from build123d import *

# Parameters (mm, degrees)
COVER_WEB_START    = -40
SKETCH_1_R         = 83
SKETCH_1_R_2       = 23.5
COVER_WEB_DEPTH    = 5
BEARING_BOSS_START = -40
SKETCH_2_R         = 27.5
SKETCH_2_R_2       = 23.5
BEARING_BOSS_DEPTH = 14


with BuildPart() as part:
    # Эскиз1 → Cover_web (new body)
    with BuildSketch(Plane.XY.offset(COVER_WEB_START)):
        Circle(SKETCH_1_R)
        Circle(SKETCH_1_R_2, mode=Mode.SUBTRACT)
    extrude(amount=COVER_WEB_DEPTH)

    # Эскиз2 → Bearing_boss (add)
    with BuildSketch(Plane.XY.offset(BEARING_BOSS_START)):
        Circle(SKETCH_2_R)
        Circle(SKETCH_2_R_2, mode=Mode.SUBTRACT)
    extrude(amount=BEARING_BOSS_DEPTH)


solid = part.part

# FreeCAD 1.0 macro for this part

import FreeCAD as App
import Part
import Sketcher
Q = App.Units.Quantity

doc = App.newDocument("Part")
params = doc.addObject("Spreadsheet::Sheet", "Params")
for row, (alias, value) in enumerate([
    ("sketch1_diameter", "166 mm"),
    ("sketch1_diameter2", "47 mm"),
    ("pad1_length", "5 mm"),
    ("sketch2_diameter", "55 mm"),
    ("sketch2_diameter2", "47 mm"),
    ("pad2_length", "14 mm"),
], start=1):
    params.set(f"A{row}", alias)
    params.set(f"B{row}", "=" + value)
    params.setAlias(f"B{row}", alias)

body = doc.addObject("PartDesign::Body", "Body")

sketch1 = doc.addObject("Sketcher::SketchObject", "Sketch")
body.addObject(sketch1)
sketch1.AttachmentSupport = (doc.XY_Plane, [""])
sketch1.MapMode = "FlatFace"
sketch1.AttachmentOffset = App.Placement(App.Vector(0, 0, -40), App.Rotation())
sketch1.addGeometry(Part.Circle(App.Vector(0, 0, 0), App.Vector(0, 0, 1), 83), False)
sketch1.addGeometry(Part.Circle(App.Vector(0, 0, 0), App.Vector(0, 0, 1), 24), False)
sketch1.addConstraint(Sketcher.Constraint("Coincident", 0, 3, -1, 1))
sketch1.addConstraint(Sketcher.Constraint("Coincident", 1, 3, -1, 1))
sketch1.addConstraint(Sketcher.Constraint("Diameter", 0, Q("166 mm")))
sketch1.addConstraint(Sketcher.Constraint("Diameter", 1, Q("47 mm")))
sketch1.setExpression("Constraints[2]", "Params.sketch1_diameter")
sketch1.setExpression("Constraints[3]", "Params.sketch1_diameter2")
pad1 = doc.addObject("PartDesign::Pad", "Pad")
body.addObject(pad1)
pad1.Profile = sketch1
pad1.setExpression("Length", "Params.pad1_length")

sketch2 = doc.addObject("Sketcher::SketchObject", "Sketch001")
body.addObject(sketch2)
sketch2.AttachmentSupport = (doc.XY_Plane, [""])
sketch2.MapMode = "FlatFace"
sketch2.AttachmentOffset = App.Placement(App.Vector(0, 0, -40), App.Rotation())
sketch2.addGeometry(Part.Circle(App.Vector(0, 0, 0), App.Vector(0, 0, 1), 28), False)
sketch2.addGeometry(Part.Circle(App.Vector(0, 0, 0), App.Vector(0, 0, 1), 24), False)
sketch2.addConstraint(Sketcher.Constraint("Coincident", 0, 3, -1, 1))
sketch2.addConstraint(Sketcher.Constraint("Coincident", 1, 3, -1, 1))
sketch2.addConstraint(Sketcher.Constraint("Diameter", 0, Q("55 mm")))
sketch2.addConstraint(Sketcher.Constraint("Diameter", 1, Q("47 mm")))
sketch2.setExpression("Constraints[2]", "Params.sketch2_diameter")
sketch2.setExpression("Constraints[3]", "Params.sketch2_diameter2")
pad2 = doc.addObject("PartDesign::Pad", "Pad001")
body.addObject(pad2)
pad2.Profile = sketch2
pad2.setExpression("Length", "Params.pad2_length")

doc.recompute()
